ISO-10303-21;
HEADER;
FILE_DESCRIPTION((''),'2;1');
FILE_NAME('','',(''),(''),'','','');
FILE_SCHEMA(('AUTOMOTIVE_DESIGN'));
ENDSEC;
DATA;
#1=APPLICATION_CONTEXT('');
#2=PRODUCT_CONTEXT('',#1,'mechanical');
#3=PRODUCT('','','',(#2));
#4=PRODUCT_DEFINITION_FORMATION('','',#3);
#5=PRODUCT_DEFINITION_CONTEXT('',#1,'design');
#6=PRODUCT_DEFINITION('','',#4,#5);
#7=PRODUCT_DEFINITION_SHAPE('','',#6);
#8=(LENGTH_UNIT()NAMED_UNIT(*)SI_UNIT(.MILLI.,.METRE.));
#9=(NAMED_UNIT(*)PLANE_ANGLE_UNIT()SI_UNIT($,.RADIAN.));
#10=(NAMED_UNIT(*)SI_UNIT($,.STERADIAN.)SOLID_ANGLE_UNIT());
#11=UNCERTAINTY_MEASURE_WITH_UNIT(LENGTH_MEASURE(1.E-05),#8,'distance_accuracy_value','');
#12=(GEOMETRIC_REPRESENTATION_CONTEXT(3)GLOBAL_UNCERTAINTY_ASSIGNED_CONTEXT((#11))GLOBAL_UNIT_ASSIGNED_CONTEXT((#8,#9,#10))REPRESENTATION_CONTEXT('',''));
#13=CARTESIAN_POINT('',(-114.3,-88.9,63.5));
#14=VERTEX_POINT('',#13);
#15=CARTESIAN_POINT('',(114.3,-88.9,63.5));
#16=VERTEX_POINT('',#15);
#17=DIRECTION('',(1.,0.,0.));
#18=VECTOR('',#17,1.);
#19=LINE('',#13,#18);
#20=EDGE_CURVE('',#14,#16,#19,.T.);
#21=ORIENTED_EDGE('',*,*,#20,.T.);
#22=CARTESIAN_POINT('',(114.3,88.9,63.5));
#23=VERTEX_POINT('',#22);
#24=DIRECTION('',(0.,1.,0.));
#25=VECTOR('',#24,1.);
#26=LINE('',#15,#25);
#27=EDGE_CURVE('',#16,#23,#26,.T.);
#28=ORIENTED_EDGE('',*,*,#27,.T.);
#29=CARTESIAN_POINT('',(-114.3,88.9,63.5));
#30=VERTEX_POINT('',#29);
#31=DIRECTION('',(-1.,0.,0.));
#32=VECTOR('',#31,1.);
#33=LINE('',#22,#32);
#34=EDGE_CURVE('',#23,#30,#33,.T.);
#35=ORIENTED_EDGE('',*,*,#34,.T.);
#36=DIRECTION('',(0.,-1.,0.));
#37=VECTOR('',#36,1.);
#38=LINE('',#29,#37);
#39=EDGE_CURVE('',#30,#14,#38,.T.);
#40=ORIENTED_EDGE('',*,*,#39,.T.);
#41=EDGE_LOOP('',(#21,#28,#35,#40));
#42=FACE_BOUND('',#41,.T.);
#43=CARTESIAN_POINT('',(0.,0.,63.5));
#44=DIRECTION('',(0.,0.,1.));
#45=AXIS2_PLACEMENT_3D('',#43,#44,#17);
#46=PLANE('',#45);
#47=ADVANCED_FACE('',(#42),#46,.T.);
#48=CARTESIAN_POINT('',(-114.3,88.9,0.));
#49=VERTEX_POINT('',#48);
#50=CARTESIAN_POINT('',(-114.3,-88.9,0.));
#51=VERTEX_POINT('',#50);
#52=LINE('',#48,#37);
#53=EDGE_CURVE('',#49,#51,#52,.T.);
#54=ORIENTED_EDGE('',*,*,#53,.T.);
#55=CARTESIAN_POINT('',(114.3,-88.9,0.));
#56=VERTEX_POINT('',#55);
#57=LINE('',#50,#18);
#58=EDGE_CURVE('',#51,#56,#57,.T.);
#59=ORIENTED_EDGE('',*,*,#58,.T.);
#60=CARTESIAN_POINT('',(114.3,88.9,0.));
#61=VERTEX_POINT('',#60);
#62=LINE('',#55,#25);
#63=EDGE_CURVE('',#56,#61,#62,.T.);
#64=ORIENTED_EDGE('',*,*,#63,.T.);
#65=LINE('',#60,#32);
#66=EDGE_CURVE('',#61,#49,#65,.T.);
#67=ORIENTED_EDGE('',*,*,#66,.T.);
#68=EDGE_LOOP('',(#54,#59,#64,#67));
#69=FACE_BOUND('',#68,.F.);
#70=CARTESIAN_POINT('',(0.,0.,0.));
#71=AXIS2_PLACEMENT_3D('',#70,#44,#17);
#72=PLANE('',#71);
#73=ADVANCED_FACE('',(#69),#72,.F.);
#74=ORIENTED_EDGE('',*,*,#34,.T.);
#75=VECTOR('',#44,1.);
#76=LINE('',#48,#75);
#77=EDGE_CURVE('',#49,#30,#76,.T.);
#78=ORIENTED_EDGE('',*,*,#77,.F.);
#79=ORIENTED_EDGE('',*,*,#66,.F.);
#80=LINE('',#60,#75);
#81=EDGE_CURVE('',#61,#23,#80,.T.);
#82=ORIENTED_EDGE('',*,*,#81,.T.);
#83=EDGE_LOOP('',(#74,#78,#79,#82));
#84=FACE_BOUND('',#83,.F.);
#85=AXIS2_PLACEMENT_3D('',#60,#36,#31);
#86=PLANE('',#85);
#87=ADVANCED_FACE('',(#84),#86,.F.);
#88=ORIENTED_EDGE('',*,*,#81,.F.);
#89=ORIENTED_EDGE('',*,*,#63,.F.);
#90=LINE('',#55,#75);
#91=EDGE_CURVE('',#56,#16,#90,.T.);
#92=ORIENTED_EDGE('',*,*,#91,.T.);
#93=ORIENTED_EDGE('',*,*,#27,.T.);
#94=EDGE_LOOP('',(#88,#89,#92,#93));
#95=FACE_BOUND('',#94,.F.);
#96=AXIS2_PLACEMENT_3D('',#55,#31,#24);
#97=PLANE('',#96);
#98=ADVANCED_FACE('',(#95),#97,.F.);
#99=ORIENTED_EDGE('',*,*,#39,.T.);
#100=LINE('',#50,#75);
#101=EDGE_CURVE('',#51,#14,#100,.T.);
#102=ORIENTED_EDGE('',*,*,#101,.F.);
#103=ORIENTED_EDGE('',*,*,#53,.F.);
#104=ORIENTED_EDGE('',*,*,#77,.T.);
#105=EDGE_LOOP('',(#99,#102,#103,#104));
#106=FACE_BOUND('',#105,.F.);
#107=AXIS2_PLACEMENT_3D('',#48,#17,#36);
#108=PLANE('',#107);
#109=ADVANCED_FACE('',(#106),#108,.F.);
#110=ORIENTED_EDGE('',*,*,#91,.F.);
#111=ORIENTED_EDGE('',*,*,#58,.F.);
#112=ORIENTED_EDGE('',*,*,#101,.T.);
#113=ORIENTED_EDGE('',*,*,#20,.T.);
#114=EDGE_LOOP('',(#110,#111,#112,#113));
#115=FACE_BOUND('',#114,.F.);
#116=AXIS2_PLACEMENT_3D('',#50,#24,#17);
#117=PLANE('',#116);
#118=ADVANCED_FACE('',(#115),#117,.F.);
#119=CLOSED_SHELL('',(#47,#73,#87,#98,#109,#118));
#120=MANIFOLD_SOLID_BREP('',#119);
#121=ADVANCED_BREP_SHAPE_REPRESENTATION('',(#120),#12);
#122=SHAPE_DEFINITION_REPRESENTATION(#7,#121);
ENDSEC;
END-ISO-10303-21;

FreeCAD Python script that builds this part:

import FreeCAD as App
import Part
import Sketcher

V = App.Vector
Q = App.Units.Quantity

doc = App.newDocument("Part")
params = doc.addObject("Spreadsheet::Sheet", "Params")
for row, (alias, value) in enumerate([
    ("sketch1_width", "9 in"),
    ("sketch1_height", "7 in"),
    ("pad1_length", "2.5 in"),
], start=1):
    params.set(f"A{row}", alias)
    params.set(f"B{row}", "=" + value)
    params.setAlias(f"B{row}", alias)

body = doc.addObject("PartDesign::Body", "Body")

# Sketch on XY plane
sketch1 = body.newObject("Sketcher::SketchObject", "Sketch")
sketch1.AttachmentSupport = (doc.getObject("XY_Plane"), [""])
sketch1.MapMode = "FlatFace"
sketch1.addGeometry(Part.LineSegment(V(114.3, -88.9, 0), V(114.3, 88.9, 0)), False)
sketch1.addGeometry(Part.LineSegment(V(114.3, 88.9, 0), V(-114.3, 88.9, 0)), False)
sketch1.addGeometry(Part.LineSegment(V(-114.3, 88.9, 0), V(-114.3, -88.9, 0)), False)
sketch1.addGeometry(Part.LineSegment(V(-114.3, -88.9, 0), V(114.3, -88.9, 0)), False)
sketch1.addConstraint(Sketcher.Constraint("Coincident", 0, 2, 1, 1))
sketch1.addConstraint(Sketcher.Constraint("Coincident", 1, 2, 2, 1))
sketch1.addConstraint(Sketcher.Constraint("Coincident", 2, 2, 3, 1))
sketch1.addConstraint(Sketcher.Constraint("Coincident", 3, 2, 0, 1))
sketch1.addConstraint(Sketcher.Constraint("Vertical", 0))
sketch1.addConstraint(Sketcher.Constraint("Horizontal", 1))
sketch1.addConstraint(Sketcher.Constraint("Vertical", 2))
sketch1.addConstraint(Sketcher.Constraint("Horizontal", 3))
sketch1.addConstraint(Sketcher.Constraint("Symmetric", 0, 2, 2, 2, -1, 1))
sketch1.addConstraint(Sketcher.Constraint("DistanceX", 1, 2, 1, 1, Q("9 in")))
sketch1.addConstraint(Sketcher.Constraint("DistanceY", 0, 1, 0, 2, Q("7 in")))
sketch1.setExpression("Constraints[9]", "Params.sketch1_width")
sketch1.setExpression("Constraints[10]", "Params.sketch1_height")
pad1 = body.newObject("PartDesign::Pad", "Pad")
pad1.Profile = sketch1
pad1.setExpression("Length", "Params.pad1_length")

doc.recompute()
